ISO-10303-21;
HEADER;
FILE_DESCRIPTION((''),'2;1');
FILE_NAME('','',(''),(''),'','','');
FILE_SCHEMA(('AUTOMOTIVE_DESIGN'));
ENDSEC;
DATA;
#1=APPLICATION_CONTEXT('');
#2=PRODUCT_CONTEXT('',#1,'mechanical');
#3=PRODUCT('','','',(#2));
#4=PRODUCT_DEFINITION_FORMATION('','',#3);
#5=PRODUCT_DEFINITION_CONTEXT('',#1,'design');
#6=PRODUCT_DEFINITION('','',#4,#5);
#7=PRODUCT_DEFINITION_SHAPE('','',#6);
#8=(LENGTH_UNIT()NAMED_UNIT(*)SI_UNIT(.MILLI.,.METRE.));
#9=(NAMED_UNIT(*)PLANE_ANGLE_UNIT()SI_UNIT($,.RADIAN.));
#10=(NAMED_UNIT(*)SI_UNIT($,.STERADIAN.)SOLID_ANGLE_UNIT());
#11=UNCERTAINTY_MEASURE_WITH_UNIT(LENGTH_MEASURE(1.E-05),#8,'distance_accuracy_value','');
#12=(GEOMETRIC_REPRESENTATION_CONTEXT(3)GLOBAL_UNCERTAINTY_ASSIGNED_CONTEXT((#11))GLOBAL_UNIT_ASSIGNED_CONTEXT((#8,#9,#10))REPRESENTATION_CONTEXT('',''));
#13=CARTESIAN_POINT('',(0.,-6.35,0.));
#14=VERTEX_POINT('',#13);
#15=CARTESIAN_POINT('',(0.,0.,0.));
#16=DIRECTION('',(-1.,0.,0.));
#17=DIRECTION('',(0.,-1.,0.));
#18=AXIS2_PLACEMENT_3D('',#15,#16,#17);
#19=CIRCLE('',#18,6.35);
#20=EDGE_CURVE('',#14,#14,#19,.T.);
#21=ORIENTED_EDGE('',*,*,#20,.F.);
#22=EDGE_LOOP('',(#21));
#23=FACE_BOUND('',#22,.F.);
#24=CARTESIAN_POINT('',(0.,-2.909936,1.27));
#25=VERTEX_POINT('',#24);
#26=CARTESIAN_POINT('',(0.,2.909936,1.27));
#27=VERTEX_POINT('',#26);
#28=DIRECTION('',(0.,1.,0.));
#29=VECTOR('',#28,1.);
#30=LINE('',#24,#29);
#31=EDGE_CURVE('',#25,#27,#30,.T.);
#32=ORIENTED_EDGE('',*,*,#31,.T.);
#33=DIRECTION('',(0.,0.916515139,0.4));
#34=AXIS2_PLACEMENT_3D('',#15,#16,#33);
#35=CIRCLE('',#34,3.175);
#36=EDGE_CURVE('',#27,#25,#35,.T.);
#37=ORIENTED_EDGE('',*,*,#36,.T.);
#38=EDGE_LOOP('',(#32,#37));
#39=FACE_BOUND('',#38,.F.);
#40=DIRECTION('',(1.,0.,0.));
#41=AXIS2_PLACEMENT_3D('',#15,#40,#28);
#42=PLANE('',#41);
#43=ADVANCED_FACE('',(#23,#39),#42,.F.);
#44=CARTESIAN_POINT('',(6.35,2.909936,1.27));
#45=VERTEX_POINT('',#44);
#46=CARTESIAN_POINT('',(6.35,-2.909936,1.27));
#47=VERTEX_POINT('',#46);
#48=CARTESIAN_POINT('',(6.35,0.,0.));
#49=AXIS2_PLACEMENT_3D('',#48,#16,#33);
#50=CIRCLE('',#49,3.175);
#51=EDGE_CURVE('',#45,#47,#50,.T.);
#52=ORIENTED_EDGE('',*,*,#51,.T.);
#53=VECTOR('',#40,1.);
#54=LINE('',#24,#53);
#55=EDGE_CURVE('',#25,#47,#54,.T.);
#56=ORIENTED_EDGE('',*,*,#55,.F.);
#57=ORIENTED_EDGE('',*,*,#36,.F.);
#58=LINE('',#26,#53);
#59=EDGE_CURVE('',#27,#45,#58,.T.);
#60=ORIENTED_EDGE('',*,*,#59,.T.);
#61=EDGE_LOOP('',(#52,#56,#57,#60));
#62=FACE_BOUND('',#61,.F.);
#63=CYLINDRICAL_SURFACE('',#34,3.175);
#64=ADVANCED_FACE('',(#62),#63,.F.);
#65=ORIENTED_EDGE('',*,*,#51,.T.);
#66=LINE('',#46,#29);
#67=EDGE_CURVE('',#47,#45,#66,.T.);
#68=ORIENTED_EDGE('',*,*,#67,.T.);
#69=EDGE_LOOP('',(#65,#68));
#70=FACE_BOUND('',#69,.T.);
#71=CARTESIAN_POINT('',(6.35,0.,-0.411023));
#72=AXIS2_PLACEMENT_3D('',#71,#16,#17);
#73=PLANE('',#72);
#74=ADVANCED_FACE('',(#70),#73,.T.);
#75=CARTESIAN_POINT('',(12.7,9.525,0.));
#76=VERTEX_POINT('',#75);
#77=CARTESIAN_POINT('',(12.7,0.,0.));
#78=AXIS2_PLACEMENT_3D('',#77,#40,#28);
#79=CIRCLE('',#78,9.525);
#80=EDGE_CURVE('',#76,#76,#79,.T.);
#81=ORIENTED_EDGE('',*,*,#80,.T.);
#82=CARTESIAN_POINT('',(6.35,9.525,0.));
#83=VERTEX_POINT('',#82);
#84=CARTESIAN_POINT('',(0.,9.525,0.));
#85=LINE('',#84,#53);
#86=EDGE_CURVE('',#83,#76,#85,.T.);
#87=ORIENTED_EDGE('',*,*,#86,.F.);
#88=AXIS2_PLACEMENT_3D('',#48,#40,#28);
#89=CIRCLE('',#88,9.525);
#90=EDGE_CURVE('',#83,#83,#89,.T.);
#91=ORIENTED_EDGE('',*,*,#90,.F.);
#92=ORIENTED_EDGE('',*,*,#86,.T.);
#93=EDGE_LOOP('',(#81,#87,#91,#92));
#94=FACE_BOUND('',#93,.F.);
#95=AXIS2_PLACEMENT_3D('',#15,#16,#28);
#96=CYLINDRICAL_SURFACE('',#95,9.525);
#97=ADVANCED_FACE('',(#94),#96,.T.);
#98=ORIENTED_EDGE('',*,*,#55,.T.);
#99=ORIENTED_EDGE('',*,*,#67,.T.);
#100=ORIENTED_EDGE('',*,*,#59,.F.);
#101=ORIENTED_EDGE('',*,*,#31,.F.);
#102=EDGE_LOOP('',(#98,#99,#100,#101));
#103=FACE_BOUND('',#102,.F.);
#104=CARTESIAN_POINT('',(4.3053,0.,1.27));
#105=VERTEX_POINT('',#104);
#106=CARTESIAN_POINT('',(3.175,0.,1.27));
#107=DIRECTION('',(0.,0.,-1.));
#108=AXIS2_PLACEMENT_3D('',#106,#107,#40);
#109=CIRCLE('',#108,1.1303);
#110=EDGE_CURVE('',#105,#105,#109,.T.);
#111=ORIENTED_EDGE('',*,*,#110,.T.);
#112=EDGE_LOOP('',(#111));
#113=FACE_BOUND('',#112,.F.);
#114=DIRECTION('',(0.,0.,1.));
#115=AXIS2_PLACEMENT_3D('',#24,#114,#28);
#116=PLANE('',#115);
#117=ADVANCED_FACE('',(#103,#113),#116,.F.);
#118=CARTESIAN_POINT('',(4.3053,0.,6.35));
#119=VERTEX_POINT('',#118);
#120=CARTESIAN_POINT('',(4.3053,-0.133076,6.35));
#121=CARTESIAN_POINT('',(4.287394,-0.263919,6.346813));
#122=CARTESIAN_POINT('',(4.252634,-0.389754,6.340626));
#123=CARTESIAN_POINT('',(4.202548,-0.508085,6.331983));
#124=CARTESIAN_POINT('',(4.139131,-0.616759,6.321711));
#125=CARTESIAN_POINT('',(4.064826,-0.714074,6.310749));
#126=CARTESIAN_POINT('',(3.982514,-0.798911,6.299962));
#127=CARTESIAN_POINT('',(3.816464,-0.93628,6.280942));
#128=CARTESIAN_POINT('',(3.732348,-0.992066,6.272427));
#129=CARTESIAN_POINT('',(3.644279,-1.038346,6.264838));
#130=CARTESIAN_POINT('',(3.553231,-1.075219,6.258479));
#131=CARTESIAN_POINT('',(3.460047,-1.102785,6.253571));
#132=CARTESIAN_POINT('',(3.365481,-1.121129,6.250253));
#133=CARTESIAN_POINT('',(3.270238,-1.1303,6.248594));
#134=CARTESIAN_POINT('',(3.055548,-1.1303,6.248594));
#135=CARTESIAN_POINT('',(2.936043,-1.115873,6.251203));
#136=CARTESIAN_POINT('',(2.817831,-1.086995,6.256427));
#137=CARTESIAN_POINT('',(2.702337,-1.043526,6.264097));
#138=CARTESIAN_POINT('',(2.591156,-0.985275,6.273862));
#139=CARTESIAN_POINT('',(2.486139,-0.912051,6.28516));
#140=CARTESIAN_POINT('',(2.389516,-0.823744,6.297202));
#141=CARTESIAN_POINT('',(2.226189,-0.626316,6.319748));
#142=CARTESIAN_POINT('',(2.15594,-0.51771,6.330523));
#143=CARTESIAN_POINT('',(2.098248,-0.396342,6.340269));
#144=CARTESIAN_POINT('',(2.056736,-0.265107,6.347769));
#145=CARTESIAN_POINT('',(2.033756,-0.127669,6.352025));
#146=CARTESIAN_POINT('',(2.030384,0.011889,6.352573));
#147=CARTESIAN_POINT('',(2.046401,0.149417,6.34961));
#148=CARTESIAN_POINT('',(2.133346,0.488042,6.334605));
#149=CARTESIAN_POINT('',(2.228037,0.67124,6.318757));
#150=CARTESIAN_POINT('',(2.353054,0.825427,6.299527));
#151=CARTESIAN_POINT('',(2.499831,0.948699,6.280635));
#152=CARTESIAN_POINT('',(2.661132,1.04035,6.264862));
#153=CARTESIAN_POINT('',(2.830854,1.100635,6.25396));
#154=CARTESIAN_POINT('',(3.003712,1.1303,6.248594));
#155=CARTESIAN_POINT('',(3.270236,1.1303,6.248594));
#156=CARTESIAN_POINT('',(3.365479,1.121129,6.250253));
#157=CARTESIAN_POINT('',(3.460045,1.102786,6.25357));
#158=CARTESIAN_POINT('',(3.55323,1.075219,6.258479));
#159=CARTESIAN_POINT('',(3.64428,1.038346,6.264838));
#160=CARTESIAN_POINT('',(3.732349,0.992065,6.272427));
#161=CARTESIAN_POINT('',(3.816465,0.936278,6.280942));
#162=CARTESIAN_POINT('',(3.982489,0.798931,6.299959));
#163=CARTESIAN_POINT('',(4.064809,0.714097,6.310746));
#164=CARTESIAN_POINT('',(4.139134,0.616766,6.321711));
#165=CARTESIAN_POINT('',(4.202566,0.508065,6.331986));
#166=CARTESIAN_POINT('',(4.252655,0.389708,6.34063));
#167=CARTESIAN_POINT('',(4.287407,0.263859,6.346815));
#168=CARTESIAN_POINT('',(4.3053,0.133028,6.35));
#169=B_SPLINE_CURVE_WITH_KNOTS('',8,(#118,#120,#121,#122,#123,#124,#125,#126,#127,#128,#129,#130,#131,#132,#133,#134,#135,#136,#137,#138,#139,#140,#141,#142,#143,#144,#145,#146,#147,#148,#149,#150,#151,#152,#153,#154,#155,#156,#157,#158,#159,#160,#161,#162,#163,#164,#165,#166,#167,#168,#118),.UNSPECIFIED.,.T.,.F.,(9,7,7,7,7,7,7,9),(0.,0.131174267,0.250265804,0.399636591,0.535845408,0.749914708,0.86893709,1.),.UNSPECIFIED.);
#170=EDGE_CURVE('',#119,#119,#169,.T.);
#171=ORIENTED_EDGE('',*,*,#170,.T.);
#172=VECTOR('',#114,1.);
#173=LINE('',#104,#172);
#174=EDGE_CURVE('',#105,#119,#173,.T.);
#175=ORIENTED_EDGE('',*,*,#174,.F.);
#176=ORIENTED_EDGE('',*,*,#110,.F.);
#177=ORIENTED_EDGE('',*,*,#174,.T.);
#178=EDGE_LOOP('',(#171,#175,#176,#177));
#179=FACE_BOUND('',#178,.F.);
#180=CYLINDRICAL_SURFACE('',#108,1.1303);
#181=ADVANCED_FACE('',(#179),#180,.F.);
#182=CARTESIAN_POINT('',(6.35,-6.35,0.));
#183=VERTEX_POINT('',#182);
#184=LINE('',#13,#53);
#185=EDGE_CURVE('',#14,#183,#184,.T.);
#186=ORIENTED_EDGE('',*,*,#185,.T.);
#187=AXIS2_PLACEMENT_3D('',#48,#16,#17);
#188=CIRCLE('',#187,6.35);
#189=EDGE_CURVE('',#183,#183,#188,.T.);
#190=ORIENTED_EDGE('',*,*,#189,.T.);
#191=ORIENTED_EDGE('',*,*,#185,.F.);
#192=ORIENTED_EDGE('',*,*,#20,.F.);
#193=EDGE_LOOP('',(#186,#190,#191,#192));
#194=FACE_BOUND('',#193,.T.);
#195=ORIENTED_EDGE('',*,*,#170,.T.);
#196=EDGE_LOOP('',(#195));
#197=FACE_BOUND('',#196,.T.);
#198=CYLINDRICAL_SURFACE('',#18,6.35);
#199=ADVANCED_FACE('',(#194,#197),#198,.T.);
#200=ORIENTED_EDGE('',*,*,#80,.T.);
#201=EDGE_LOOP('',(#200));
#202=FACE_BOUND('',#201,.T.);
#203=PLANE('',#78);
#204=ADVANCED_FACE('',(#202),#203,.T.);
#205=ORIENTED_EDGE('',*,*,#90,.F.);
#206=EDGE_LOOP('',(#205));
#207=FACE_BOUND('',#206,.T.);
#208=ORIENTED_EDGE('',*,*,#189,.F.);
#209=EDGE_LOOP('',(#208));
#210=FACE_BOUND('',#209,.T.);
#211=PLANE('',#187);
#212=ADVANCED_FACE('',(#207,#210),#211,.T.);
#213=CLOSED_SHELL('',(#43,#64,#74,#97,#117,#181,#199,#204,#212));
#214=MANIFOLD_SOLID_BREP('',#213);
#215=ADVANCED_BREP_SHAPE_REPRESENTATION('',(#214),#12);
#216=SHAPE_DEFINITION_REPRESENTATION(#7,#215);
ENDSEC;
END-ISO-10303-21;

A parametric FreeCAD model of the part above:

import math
import FreeCAD as App
import Part
import Sketcher

V = App.Vector
Q = App.Units.Quantity

doc = App.newDocument("Part")
body = doc.addObject("PartDesign::Body", "Body")

# Sketch on YZ plane
sketch1 = body.newObject("Sketcher::SketchObject", "Sketch")
sketch1.AttachmentSupport = (doc.getObject("YZ_Plane"), [""])
sketch1.MapMode = "FlatFace"
sketch1.addGeometry(Part.Circle(V(0, 0, 0), V(0, 0, 1), 9.525), False)
sketch1.addConstraint([
    Sketcher.Constraint("Coincident", 0, 3, -1, 1),
    Sketcher.Constraint("Diameter", 0, Q("0.75 in")),
])
pad1 = body.newObject("PartDesign::Pad", "Pad")
pad1.Profile = sketch1
pad1.Length = Q("0.5 in")

# Sketch on YZ plane
sketch2 = body.newObject("Sketcher::SketchObject", "Sketch001")
sketch2.AttachmentSupport = (doc.getObject("YZ_Plane"), [""])
sketch2.MapMode = "FlatFace"
sketch2.addGeometry([
    Part.Circle(V(0, 0, 0), V(0, 0, 1), 9.525),
    Part.Circle(V(0, 0, 0), V(0, 0, 1), 6.35),
], False)
sketch2.addConstraint([
    Sketcher.Constraint("Coincident", 0, 3, -1, 1),
    Sketcher.Constraint("Coincident", 1, 3, -1, 1),
    Sketcher.Constraint("Diameter", 1, Q("0.5 in")),
    Sketcher.Constraint("Diameter", 0, Q("0.75 in")),
])
pocket1 = body.newObject("PartDesign::Pocket", "Pocket")
pocket1.Profile = sketch2
pocket1.Length = Q("0.25 in")
pocket1.Reversed = True

# Sketch on YZ plane
sketch3 = body.newObject("Sketcher::SketchObject", "Sketch002")
sketch3.AttachmentSupport = (doc.getObject("YZ_Plane"), [""])
sketch3.MapMode = "FlatFace"
sketch3.addGeometry([
    Part.LineSegment(V(-2.909936, 1.27, 0), V(2.909936, 1.27, 0)),
    Part.ArcOfCircle(Part.Circle(V(0, 0, 0), V(0, 0, 1), 3.175), math.radians(156.421822), math.radians(383.578178)),
], False)
sketch3.addConstraint([
    Sketcher.Constraint("Coincident", 0, 1, 1, 1),
    Sketcher.Constraint("Coincident", 1, 2, 0, 2),
    Sketcher.Constraint("Horizontal", 0),
    Sketcher.Constraint("Coincident", 1, 3, -1, 1),
    Sketcher.Constraint("Radius", 1, Q("0.125 in")),
    Sketcher.Constraint("DistanceY", -1, 1, 0, 1, Q("0.05 in")),
])
pocket2 = body.newObject("PartDesign::Pocket", "Pocket001")
pocket2.Profile = sketch3
pocket2.Length = Q("0.25 in")
pocket2.Reversed = True

# Sketch on XY plane
sketch4 = body.newObject("Sketcher::SketchObject", "Sketch003")
sketch4.AttachmentSupport = (doc.getObject("XY_Plane"), [""])
sketch4.MapMode = "FlatFace"
sketch4.AttachmentOffset = App.Placement(V(0, 0, 0.05 * 25.4), App.Rotation())
sketch4.addGeometry(Part.Circle(V(3.175, 0, 0), V(0, 0, 1), 1.1303), False)
sketch4.addConstraint([
    Sketcher.Constraint("PointOnObject", 0, 3, -1),
    Sketcher.Constraint("Diameter", 0, Q("0.089 in")),
    Sketcher.Constraint("DistanceX", -1, 1, 0, 3, Q("0.125 in")),
])
pocket3 = body.newObject("PartDesign::Pocket", "Pocket002")
pocket3.Profile = sketch4
pocket3.Type = "ThroughAll"
pocket3.Reversed = True

doc.recompute()
